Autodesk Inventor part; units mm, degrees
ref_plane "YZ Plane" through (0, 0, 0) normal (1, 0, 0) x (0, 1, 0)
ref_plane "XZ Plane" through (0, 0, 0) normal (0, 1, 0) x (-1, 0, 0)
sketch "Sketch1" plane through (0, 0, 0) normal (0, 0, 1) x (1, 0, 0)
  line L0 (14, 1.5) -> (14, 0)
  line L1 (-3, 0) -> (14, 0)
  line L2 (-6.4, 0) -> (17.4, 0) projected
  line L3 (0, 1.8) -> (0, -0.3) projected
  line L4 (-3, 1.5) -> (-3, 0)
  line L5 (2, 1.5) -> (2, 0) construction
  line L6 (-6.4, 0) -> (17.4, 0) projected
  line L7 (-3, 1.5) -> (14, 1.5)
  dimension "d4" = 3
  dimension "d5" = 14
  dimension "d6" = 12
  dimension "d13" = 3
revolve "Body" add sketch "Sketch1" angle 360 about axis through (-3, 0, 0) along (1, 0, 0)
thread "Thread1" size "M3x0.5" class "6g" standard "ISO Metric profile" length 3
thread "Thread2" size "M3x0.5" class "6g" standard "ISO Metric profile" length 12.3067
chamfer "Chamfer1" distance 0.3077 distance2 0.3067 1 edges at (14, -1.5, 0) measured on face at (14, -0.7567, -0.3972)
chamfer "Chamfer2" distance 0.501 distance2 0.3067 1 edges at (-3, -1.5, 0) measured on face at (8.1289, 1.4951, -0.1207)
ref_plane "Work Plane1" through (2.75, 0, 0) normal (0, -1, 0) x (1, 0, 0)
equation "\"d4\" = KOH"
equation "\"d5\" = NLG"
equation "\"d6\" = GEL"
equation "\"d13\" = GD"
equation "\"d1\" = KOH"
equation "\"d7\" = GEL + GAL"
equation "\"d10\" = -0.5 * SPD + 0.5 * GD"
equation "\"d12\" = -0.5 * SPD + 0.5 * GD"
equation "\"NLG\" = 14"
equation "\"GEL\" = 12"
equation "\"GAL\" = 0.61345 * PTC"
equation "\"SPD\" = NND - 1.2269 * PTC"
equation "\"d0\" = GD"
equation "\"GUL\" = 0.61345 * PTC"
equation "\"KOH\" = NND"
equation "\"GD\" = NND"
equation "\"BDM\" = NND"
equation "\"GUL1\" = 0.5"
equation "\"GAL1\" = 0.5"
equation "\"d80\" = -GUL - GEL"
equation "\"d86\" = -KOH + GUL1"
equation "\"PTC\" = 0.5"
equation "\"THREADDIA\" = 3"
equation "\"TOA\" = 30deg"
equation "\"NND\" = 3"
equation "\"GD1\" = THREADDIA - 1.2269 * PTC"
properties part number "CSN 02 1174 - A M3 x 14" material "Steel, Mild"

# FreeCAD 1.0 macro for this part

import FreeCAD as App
import Part
import Sketcher
from FreeCAD import Vector
Q = App.Units.Quantity


def edges_at(feature, points):
    """Names of the edges that pass closest to the given points."""
    edges = feature.Shape.Edges
    near = lambda p: min(range(len(edges)), key=lambda i: edges[i].distToShape(Part.Vertex(*p))[0])
    return sorted({f"Edge{near(p) + 1}" for p in points})


def add_polygon(sketch, points):
    """Adds a closed chain of lines whose ends are joined by coincident constraints."""
    first, n = sketch.GeometryCount, len(points)
    for a, b in zip(points, points[1:] + points[:1]):
        sketch.addGeometry(Part.LineSegment(App.Vector(*a, 0), App.Vector(*b, 0)), False)
    for i in range(n):
        sketch.addConstraint(Sketcher.Constraint("Coincident", first + i, 2, first + (i + 1) % n, 1))

doc = App.newDocument("Part")
body = doc.addObject("PartDesign::Body", "Body")

# Sketch on XY plane
sketch1 = doc.addObject("Sketcher::SketchObject", "Sketch")
body.addObject(sketch1)
sketch1.AttachmentSupport = (doc.XY_Plane, [""])
sketch1.MapMode = "FlatFace"
add_polygon(sketch1, [(14, 0), (14, 1.5), (-3, 1.5), (-3, 0)])  # lines 0-3
sketch1.addConstraint([
    Sketcher.Constraint("Vertical", 0),
    Sketcher.Constraint("Horizontal", 1),
    Sketcher.Constraint("Vertical", 2),
    Sketcher.Constraint("Horizontal", 3),
    Sketcher.Constraint("PointOnObject", 2, 2, -1),
    Sketcher.Constraint("DistanceX", -1, 1, 0, 2, Q("14 mm")),
    Sketcher.Constraint("DistanceX", 1, 2, -1, 1, Q("3 mm")),
    Sketcher.Constraint("DistanceY", 0, 1, 0, 2, Q("1.5 mm")),
])
revolution = doc.addObject("PartDesign::Revolution", "Revolution")
body.addObject(revolution)
revolution.Profile = sketch1
revolution.ReferenceAxis = (sketch1, ["H_Axis"])
revolution.Angle = 360
doc.recompute()

chamfer = doc.addObject("PartDesign::Chamfer", "Chamfer")
body.addObject(chamfer)
chamfer.Base = (revolution, edges_at(revolution, [(14, -1.5, 0)]))
chamfer.ChamferType = "Two distances"
chamfer.Size = 0.3077
chamfer.Size2 = 0.3067
doc.recompute()

chamfer2 = doc.addObject("PartDesign::Chamfer", "Chamfer001")
body.addObject(chamfer2)
chamfer2.Base = (chamfer, edges_at(chamfer, [(-3, -1.5, 0)]))
chamfer2.ChamferType = "Two distances"
chamfer2.Size = 0.501
chamfer2.Size2 = 0.3067

doc.recompute()
